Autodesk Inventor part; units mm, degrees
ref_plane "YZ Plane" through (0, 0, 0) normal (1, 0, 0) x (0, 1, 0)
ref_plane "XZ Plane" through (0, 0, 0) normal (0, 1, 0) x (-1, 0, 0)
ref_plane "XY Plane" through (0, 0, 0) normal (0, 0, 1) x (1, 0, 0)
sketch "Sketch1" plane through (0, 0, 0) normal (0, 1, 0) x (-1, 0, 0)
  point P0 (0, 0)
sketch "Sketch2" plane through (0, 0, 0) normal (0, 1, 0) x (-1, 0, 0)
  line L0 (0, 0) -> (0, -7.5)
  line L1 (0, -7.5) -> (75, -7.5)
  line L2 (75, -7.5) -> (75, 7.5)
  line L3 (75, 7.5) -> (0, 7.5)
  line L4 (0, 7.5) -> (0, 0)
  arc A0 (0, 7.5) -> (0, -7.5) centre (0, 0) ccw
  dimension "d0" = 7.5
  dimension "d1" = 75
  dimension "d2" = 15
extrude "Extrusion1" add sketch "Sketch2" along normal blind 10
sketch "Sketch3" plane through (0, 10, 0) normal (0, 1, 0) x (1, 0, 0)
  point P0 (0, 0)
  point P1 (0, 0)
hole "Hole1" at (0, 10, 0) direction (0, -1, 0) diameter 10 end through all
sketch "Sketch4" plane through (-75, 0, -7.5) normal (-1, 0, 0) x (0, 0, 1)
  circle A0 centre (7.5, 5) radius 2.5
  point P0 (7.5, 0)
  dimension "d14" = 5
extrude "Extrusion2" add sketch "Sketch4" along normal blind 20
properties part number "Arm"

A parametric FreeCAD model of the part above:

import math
import FreeCAD as App
import Part
import Sketcher
from FreeCAD import Vector

doc = App.newDocument("Part")
body = doc.addObject("PartDesign::Body", "Body")

# Sketch on XZ plane
sketch1 = doc.addObject("Sketcher::SketchObject", "Sketch")
body.addObject(sketch1)
sketch1.AttachmentSupport = (doc.XZ_Plane, [""])
sketch1.MapMode = "FlatFace"
sketch1.addGeometry(Part.LineSegment(Vector(-75, 8, 0), Vector(0, 8, 0)), False)
sketch1.addGeometry(Part.ArcOfCircle(Part.Circle(Vector(0, 0, 0), Vector(0, 0, 1), 8), math.radians(-90), math.radians(90)), False)
sketch1.addGeometry(Part.LineSegment(Vector(0, -8, 0), Vector(-75, -8, 0)), False)
sketch1.addGeometry(Part.LineSegment(Vector(-75, -8, 0), Vector(-75, 8, 0)), False)
sketch1.addConstraint(Sketcher.Constraint("Tangent", 0, 2, 1, 2))
sketch1.addConstraint(Sketcher.Constraint("Tangent", 1, 1, 2, 1))
sketch1.addConstraint(Sketcher.Constraint("Coincident", 2, 2, 3, 1))
sketch1.addConstraint(Sketcher.Constraint("Coincident", 3, 2, 0, 1))
sketch1.addConstraint(Sketcher.Constraint("Horizontal", 0))
sketch1.addConstraint(Sketcher.Constraint("Horizontal", 2))
sketch1.addConstraint(Sketcher.Constraint("Vertical", 3))
sketch1.addConstraint(Sketcher.Constraint("Coincident", 1, 3, -1, 1))
sketch1.addConstraint(Sketcher.Constraint("Radius", 1, 7.5))
sketch1.addConstraint(Sketcher.Constraint("DistanceX", 0, 1, 0, 2, 75.0))
pad1 = doc.addObject("PartDesign::Pad", "Pad")
body.addObject(pad1)
pad1.Profile = sketch1
pad1.Length = 10
pad1.Reversed = True

# Sketch on XZ plane
sketch2 = doc.addObject("Sketcher::SketchObject", "Sketch001")
body.addObject(sketch2)
sketch2.AttachmentSupport = (doc.XZ_Plane, [""])
sketch2.MapMode = "FlatFace"
sketch2.AttachmentOffset = App.Placement(Vector(0, 0, -10), App.Rotation())
sketch2.addGeometry(Part.Circle(Vector(0, 0, 0), Vector(0, 0, 1), 5), False)
sketch2.addConstraint(Sketcher.Constraint("Coincident", 0, 3, -1, 1))
sketch2.addConstraint(Sketcher.Constraint("Diameter", 0, 10.0))
doc.recompute()
hole = doc.addObject("PartDesign::Hole", "Hole")
body.addObject(hole)
hole.Profile = sketch2
hole.ThreadType = "None"
hole.Diameter = 10
hole.DepthType = "ThroughAll"
hole.Reversed = True

# Sketch on YZ plane
sketch3 = doc.addObject("Sketcher::SketchObject", "Sketch002")
body.addObject(sketch3)
sketch3.AttachmentSupport = (doc.YZ_Plane, [""])
sketch3.MapMode = "FlatFace"
sketch3.AttachmentOffset = App.Placement(Vector(0, 0, -75), App.Rotation())
sketch3.addGeometry(Part.Circle(Vector(5, 0, 0), Vector(0, 0, 1), 2.5), False)
sketch3.addConstraint(Sketcher.Constraint("PointOnObject", 0, 3, -1))
sketch3.addConstraint(Sketcher.Constraint("Diameter", 0, 5.0))
sketch3.addConstraint(Sketcher.Constraint("DistanceX", -1, 1, 0, 3, 5.0))
pad2 = doc.addObject("PartDesign::Pad", "Pad001")
body.addObject(pad2)
pad2.Profile = sketch3
pad2.Length = 20
pad2.Reversed = True

doc.recompute()
